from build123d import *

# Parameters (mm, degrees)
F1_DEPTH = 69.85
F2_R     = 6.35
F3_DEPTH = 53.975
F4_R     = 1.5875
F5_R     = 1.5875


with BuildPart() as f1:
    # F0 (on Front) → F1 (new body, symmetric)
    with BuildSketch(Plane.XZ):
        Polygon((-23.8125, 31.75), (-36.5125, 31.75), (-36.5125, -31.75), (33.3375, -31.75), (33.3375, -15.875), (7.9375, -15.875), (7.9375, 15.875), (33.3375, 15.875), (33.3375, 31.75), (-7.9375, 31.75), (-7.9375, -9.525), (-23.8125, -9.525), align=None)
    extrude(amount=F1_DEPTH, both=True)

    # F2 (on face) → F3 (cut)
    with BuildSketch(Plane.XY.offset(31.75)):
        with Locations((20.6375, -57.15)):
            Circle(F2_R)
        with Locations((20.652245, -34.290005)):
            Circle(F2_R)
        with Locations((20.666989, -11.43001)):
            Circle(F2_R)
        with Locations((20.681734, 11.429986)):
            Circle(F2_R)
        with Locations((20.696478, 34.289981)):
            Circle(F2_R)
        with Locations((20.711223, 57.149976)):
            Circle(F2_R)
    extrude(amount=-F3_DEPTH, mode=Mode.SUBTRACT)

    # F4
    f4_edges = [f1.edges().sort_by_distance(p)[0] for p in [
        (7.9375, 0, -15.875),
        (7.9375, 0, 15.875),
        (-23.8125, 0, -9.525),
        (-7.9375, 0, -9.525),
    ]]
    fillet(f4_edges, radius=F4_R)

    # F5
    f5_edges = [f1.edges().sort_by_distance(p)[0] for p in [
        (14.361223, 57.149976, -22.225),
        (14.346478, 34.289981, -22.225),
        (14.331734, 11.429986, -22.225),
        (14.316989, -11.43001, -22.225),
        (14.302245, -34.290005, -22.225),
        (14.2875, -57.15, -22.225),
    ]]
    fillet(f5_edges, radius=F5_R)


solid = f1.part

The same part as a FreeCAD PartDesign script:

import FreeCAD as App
import Part
import Sketcher

V = App.Vector
Q = App.Units.Quantity


def edges_at(feature, points):
    """Names of the edges that pass closest to the given points."""
    edges = feature.Shape.Edges
    near = lambda p: min(range(len(edges)), key=lambda i: edges[i].distToShape(Part.Vertex(*p))[0])
    return sorted({f"Edge{near(p) + 1}" for p in points})


def add_polygon(sketch, points):
    """Adds a closed chain of lines whose ends are joined by coincident constraints."""
    first, n = sketch.GeometryCount, len(points)
    for a, b in zip(points, points[1:] + points[:1]):
        sketch.addGeometry(Part.LineSegment(App.Vector(*a, 0), App.Vector(*b, 0)), False)
    for i in range(n):
        sketch.addConstraint(Sketcher.Constraint("Coincident", first + i, 2, first + (i + 1) % n, 1))

doc = App.newDocument("Part")
body = doc.addObject("PartDesign::Body", "Body")

# Sketch on XZ plane
sketch1 = doc.addObject("Sketcher::SketchObject", "Sketch")
body.addObject(sketch1)
sketch1.AttachmentSupport = (doc.XZ_Plane, [""])
sketch1.MapMode = "FlatFace"
add_polygon(sketch1, [(-24, 32), (-37, 32), (-37, -32), (33, -32), (33, -16), (8, -16), (8, 16), (33, 16), (33, 32), (-8, 32), (-8, -10), (-24, -10)])  # lines 0-11
sketch1.addConstraint([
    Sketcher.Constraint("Horizontal", 0),
    Sketcher.Constraint("Vertical", 1),
    Sketcher.Constraint("Horizontal", 2),
    Sketcher.Constraint("Vertical", 3),
    Sketcher.Constraint("Horizontal", 4),
    Sketcher.Constraint("Vertical", 5),
    Sketcher.Constraint("Horizontal", 6),
    Sketcher.Constraint("Vertical", 7),
    Sketcher.Constraint("Horizontal", 8),
    Sketcher.Constraint("Vertical", 9),
    Sketcher.Constraint("Horizontal", 10),
    Sketcher.Constraint("Vertical", 11),
    Sketcher.Constraint("Symmetric", 3, 2, 6, 2, -1),
    Sketcher.Constraint("Horizontal", 0, 2, 7, 2),
    Sketcher.Constraint("Equal", 10, 3),
    Sketcher.Constraint("Equal", 3, 7),
    Sketcher.Constraint("Equal", 8, 9),
    Sketcher.Constraint("DistanceX", 4, 2, 4, 1, Q("1 in")),
    Sketcher.Constraint("DistanceX", 0, 2, 0, 1, Q("0.5 in")),
    Sketcher.Constraint("DistanceY", 1, 2, 1, 1, Q("2.5 in")),
    Sketcher.Constraint("DistanceY", 9, 2, 5, 2, Q("1 in")),
    Sketcher.Constraint("DistanceX", 2, 1, 2, 2, Q("2.75 in")),
    Sketcher.Constraint("DistanceX", 0, 2, -1, 1, Q("1.4375 in")),
])
pad1 = doc.addObject("PartDesign::Pad", "Pad")
body.addObject(pad1)
pad1.Profile = sketch1
pad1.Length = Q("5.5 in")
pad1.Midplane = True

# Sketch on XY plane
sketch2 = doc.addObject("Sketcher::SketchObject", "Sketch001")
body.addObject(sketch2)
sketch2.AttachmentSupport = (doc.XY_Plane, [""])
sketch2.MapMode = "FlatFace"
sketch2.AttachmentOffset = App.Placement(V(0, 0, 1.25 * 25.4), App.Rotation())
sketch2.addGeometry([
    Part.Circle(V(21, -57, 0), V(0, 0, 1), 6),  # 0
    Part.Circle(V(21, -34, 0), V(0, 0, 1), 6),  # 1
    Part.Circle(V(21, -11, 0), V(0, 0, 1), 6),  # 2
    Part.Circle(V(21, 11, 0), V(0, 0, 1), 6),  # 3
    Part.Circle(V(21, 34, 0), V(0, 0, 1), 6),  # 4
    Part.Circle(V(21, 57, 0), V(0, 0, 1), 6),  # 5
], False)
sketch2.addConstraint([
    Sketcher.Constraint("Equal", 0, 1),
    Sketcher.Constraint("Equal", 1, 2),
    Sketcher.Constraint("Equal", 2, 3),
    Sketcher.Constraint("Equal", 3, 4),
    Sketcher.Constraint("Equal", 4, 5),
    Sketcher.Constraint("Diameter", 0, Q("0.5 in")),
    Sketcher.Constraint("DistanceY", 0, 3, 1, 3, Q("0.8999998 in")),
    Sketcher.Constraint("DistanceY", 1, 3, 2, 3, Q("0.8999998 in")),
    Sketcher.Constraint("DistanceY", 2, 3, 3, 3, Q("0.8999998 in")),
    Sketcher.Constraint("DistanceY", 3, 3, 4, 3, Q("0.8999998 in")),
    Sketcher.Constraint("DistanceY", 4, 3, 5, 3, Q("0.8999998 in")),
    Sketcher.Constraint("DistanceY", 0, 3, -1, 1, Q("2.25 in")),
    Sketcher.Constraint("DistanceX", -1, 1, 0, 3, Q("0.8125 in")),
    Sketcher.Constraint("DistanceX", -1, 1, 2, 3, 20.666989),
    Sketcher.Constraint("DistanceX", 1, 3, 3, 3, 0.029489),
    Sketcher.Constraint("DistanceX", 2, 3, 4, 3, 0.029489),
    Sketcher.Constraint("DistanceX", 3, 3, 5, 3, 0.029489),
    Sketcher.Constraint("DistanceX", -1, 1, 1, 3, 20.652245),
])
pocket1 = doc.addObject("PartDesign::Pocket", "Pocket")
body.addObject(pocket1)
pocket1.Profile = sketch2
pocket1.Length = Q("2.125 in")
doc.recompute()

fillet = doc.addObject("PartDesign::Fillet", "Fillet")
body.addObject(fillet)
fillet.Base = (pocket1, edges_at(pocket1, [
    (7.938, 0, -15.875),
    (7.938, 0, 15.875),
    (-23.812, 0, -9.525),
    (-7.938, 0, -9.525),
]))
fillet.Radius = Q("0.0625 in")
doc.recompute()

fillet2 = doc.addObject("PartDesign::Fillet", "Fillet001")
body.addObject(fillet2)
fillet2.Base = (fillet, edges_at(fillet, [
    (14.361, 57.15, -22.225),
    (14.346, 34.29, -22.225),
    (14.332, 11.43, -22.225),
    (14.317, -11.43, -22.225),
    (14.302, -34.29, -22.225),
    (14.287, -57.15, -22.225),
]))
fillet2.Radius = Q("0.0625 in")

doc.recompute()
